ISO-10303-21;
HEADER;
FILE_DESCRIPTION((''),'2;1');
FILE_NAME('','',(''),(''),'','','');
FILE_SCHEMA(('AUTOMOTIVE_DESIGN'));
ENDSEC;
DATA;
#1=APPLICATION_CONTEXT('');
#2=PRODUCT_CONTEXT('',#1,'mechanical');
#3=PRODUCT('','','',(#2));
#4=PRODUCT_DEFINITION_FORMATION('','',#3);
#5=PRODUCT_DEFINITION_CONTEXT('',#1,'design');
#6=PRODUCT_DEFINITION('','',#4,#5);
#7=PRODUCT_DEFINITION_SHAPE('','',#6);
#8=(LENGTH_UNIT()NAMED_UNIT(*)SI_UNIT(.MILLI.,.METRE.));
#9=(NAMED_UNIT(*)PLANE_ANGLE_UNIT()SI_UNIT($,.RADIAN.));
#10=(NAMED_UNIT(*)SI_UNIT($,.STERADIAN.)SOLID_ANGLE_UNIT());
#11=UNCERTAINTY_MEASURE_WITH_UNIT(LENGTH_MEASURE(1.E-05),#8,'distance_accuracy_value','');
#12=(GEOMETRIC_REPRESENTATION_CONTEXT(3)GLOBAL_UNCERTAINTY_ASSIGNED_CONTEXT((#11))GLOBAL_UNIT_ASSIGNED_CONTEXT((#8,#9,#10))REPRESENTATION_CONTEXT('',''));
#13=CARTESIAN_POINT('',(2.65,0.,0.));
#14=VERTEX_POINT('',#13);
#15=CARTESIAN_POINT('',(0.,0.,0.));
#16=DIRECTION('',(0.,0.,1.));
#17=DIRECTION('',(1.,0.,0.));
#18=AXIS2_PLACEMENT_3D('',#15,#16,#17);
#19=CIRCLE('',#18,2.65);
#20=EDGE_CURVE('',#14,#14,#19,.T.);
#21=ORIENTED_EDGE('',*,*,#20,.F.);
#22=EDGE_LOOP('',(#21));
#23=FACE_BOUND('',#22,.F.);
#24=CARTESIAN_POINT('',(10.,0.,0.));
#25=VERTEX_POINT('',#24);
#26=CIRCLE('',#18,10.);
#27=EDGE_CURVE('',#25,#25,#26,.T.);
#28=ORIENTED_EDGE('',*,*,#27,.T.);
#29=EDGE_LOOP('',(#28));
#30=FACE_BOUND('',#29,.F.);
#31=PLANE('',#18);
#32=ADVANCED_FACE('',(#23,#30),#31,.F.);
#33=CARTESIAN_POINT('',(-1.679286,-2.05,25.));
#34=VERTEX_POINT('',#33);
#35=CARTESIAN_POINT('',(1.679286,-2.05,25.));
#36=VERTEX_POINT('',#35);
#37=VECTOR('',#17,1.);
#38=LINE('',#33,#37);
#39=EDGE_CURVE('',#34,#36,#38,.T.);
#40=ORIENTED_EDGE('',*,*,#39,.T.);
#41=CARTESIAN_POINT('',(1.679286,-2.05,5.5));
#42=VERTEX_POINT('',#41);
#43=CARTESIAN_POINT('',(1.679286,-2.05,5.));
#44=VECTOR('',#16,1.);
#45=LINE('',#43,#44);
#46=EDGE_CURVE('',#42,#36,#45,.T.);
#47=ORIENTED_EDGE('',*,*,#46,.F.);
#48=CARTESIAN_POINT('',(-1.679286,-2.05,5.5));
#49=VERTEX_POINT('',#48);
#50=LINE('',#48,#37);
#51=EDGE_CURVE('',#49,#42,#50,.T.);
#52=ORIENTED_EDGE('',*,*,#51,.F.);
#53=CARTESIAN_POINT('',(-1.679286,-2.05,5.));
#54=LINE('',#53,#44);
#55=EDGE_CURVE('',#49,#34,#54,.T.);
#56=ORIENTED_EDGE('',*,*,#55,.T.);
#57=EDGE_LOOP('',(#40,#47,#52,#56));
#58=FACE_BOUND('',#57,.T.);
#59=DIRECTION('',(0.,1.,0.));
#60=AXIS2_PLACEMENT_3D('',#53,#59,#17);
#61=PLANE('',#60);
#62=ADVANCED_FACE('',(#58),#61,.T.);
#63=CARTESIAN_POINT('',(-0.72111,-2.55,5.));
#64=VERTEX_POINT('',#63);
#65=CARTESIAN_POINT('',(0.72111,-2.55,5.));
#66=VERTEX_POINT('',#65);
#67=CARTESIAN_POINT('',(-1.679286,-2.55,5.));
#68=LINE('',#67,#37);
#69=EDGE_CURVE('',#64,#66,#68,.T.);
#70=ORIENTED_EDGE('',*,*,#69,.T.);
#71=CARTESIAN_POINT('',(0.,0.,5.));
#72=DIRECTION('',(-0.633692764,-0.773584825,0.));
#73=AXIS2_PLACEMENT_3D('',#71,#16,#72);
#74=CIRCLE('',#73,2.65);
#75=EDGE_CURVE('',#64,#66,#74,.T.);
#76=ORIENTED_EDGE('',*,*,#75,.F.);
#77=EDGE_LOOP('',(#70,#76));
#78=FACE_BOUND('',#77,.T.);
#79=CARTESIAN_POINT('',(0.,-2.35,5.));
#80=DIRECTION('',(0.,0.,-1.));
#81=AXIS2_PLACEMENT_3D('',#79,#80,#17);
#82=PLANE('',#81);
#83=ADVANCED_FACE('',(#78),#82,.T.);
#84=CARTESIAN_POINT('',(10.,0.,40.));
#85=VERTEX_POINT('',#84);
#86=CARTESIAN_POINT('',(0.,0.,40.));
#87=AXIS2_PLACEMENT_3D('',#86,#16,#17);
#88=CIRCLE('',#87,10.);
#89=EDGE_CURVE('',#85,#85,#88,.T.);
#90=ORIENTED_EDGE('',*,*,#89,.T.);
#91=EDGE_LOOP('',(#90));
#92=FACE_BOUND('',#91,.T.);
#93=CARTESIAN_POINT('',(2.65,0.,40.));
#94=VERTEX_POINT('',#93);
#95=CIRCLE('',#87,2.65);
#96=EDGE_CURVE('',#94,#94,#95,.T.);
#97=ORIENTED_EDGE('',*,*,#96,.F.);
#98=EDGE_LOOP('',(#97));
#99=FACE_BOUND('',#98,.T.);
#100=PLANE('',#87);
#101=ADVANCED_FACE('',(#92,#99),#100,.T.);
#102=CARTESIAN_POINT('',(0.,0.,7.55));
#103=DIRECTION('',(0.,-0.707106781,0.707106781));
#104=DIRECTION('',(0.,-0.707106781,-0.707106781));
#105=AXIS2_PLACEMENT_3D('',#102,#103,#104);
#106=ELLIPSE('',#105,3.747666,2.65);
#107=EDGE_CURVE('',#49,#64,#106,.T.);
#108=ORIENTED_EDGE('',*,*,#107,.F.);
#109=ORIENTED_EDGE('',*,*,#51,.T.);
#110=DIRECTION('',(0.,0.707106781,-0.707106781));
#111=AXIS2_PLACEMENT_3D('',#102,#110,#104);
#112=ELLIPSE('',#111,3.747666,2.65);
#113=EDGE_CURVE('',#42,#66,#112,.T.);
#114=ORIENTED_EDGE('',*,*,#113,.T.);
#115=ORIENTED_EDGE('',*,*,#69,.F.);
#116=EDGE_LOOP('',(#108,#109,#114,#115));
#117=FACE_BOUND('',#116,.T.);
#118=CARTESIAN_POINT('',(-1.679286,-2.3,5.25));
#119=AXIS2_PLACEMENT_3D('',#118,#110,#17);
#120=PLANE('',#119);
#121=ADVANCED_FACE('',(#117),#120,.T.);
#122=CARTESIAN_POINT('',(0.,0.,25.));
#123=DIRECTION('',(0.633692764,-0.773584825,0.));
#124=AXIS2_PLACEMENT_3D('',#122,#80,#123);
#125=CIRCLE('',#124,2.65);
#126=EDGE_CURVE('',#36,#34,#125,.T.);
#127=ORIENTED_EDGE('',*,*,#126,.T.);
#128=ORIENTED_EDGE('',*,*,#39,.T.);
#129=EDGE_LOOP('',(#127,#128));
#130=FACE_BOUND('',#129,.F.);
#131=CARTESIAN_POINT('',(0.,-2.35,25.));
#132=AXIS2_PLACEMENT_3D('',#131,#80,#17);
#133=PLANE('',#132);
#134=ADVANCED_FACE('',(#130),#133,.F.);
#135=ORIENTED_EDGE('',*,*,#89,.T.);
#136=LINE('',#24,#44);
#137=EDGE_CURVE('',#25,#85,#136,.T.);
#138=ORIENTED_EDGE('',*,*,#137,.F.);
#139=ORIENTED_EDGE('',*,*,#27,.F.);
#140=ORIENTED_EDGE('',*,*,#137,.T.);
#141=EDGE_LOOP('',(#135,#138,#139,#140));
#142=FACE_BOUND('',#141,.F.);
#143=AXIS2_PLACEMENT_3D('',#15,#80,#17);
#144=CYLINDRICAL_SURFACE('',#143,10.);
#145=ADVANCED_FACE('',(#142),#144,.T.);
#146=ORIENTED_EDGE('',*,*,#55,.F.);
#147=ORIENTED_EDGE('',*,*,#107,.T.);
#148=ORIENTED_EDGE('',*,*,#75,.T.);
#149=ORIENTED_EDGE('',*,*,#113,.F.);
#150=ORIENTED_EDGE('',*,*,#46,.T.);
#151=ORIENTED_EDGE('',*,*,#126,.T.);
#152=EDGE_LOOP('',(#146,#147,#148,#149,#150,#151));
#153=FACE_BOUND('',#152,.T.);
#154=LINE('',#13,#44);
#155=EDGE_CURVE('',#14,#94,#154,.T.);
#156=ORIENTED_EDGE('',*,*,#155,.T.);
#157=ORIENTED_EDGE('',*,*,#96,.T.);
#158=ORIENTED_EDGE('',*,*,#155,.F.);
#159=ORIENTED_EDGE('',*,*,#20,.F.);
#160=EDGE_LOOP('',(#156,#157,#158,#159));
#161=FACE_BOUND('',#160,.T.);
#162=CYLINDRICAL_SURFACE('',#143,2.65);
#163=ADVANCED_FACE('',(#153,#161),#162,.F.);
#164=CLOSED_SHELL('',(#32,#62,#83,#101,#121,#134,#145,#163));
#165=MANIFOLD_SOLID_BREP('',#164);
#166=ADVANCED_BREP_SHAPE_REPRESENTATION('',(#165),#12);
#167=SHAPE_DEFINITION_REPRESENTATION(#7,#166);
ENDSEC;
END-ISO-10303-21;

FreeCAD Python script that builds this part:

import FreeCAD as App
import Part
import Sketcher

V = App.Vector
Q = App.Units.Quantity


def edges_at(feature, points):
    """Names of the edges that pass closest to the given points."""
    edges = feature.Shape.Edges
    near = lambda p: min(range(len(edges)), key=lambda i: edges[i].distToShape(Part.Vertex(*p))[0])
    return sorted({f"Edge{near(p) + 1}" for p in points})


def add_polygon(sketch, points):
    """Adds a closed chain of lines whose ends are joined by coincident constraints."""
    first, n = sketch.GeometryCount, len(points)
    for a, b in zip(points, points[1:] + points[:1]):
        sketch.addGeometry(Part.LineSegment(App.Vector(*a, 0), App.Vector(*b, 0)), False)
    for i in range(n):
        sketch.addConstraint(Sketcher.Constraint("Coincident", first + i, 2, first + (i + 1) % n, 1))

doc = App.newDocument("Part")
body = doc.addObject("PartDesign::Body", "Body")

# Sketch on XY plane
sketch1 = body.newObject("Sketcher::SketchObject", "Sketch")
sketch1.AttachmentSupport = (doc.getObject("XY_Plane"), [""])
sketch1.MapMode = "FlatFace"
sketch1.addGeometry(Part.Circle(V(0, 0, 0), V(0, 0, 1), 10), False)
sketch1.addGeometry(Part.Circle(V(0, 0, 0), V(0, 0, 1), 2.65), False)
sketch1.addConstraint(Sketcher.Constraint("Coincident", 0, 3, -1, 1))
sketch1.addConstraint(Sketcher.Constraint("Coincident", 1, 3, -1, 1))
sketch1.addConstraint(Sketcher.Constraint("Diameter", 0, Q("20 mm")))
sketch1.addConstraint(Sketcher.Constraint("Diameter", 1, Q("5.3 mm")))
pad1 = body.newObject("PartDesign::Pad", "Pad")
pad1.Profile = sketch1
pad1.Length = 40

# Sketch on XY plane
sketch2 = body.newObject("Sketcher::SketchObject", "Sketch001")
sketch2.AttachmentSupport = (doc.getObject("XY_Plane"), [""])
sketch2.MapMode = "FlatFace"
sketch2.AttachmentOffset = App.Placement(V(0, 0, 5), App.Rotation())
add_polygon(sketch2, [(-1.679286, -2.65), (-1.679286, -2.05), (1.679286, -2.05), (1.679286, -2.65)])  # lines 0-3
sketch2.addConstraint(Sketcher.Constraint("Vertical", 0))
sketch2.addConstraint(Sketcher.Constraint("Horizontal", 1))
sketch2.addConstraint(Sketcher.Constraint("Vertical", 2))
sketch2.addConstraint(Sketcher.Constraint("Horizontal", 3))
sketch2.addConstraint(Sketcher.Constraint("DistanceY", 0, 1, 0, 2, Q("0.6 mm")))
sketch2.addConstraint(Sketcher.Constraint("DistanceY", 0, 2, -1, 1, Q("2.05 mm")))
sketch2.addConstraint(Sketcher.Constraint("DistanceX", 1, 1, 1, 2, Q("3.358572 mm")))
sketch2.addConstraint(Sketcher.Constraint("DistanceX", 0, 2, -1, 1, Q("1.679286 mm")))
pad2 = body.newObject("PartDesign::Pad", "Pad001")
pad2.Profile = sketch2
pad2.Length = 20
doc.recompute()

chamfer = body.newObject("PartDesign::Chamfer", "Chamfer")
chamfer.Base = (pad2, edges_at(pad2, [(0, -2.05, 5)]))
chamfer.Size = 0.5

doc.recompute()
